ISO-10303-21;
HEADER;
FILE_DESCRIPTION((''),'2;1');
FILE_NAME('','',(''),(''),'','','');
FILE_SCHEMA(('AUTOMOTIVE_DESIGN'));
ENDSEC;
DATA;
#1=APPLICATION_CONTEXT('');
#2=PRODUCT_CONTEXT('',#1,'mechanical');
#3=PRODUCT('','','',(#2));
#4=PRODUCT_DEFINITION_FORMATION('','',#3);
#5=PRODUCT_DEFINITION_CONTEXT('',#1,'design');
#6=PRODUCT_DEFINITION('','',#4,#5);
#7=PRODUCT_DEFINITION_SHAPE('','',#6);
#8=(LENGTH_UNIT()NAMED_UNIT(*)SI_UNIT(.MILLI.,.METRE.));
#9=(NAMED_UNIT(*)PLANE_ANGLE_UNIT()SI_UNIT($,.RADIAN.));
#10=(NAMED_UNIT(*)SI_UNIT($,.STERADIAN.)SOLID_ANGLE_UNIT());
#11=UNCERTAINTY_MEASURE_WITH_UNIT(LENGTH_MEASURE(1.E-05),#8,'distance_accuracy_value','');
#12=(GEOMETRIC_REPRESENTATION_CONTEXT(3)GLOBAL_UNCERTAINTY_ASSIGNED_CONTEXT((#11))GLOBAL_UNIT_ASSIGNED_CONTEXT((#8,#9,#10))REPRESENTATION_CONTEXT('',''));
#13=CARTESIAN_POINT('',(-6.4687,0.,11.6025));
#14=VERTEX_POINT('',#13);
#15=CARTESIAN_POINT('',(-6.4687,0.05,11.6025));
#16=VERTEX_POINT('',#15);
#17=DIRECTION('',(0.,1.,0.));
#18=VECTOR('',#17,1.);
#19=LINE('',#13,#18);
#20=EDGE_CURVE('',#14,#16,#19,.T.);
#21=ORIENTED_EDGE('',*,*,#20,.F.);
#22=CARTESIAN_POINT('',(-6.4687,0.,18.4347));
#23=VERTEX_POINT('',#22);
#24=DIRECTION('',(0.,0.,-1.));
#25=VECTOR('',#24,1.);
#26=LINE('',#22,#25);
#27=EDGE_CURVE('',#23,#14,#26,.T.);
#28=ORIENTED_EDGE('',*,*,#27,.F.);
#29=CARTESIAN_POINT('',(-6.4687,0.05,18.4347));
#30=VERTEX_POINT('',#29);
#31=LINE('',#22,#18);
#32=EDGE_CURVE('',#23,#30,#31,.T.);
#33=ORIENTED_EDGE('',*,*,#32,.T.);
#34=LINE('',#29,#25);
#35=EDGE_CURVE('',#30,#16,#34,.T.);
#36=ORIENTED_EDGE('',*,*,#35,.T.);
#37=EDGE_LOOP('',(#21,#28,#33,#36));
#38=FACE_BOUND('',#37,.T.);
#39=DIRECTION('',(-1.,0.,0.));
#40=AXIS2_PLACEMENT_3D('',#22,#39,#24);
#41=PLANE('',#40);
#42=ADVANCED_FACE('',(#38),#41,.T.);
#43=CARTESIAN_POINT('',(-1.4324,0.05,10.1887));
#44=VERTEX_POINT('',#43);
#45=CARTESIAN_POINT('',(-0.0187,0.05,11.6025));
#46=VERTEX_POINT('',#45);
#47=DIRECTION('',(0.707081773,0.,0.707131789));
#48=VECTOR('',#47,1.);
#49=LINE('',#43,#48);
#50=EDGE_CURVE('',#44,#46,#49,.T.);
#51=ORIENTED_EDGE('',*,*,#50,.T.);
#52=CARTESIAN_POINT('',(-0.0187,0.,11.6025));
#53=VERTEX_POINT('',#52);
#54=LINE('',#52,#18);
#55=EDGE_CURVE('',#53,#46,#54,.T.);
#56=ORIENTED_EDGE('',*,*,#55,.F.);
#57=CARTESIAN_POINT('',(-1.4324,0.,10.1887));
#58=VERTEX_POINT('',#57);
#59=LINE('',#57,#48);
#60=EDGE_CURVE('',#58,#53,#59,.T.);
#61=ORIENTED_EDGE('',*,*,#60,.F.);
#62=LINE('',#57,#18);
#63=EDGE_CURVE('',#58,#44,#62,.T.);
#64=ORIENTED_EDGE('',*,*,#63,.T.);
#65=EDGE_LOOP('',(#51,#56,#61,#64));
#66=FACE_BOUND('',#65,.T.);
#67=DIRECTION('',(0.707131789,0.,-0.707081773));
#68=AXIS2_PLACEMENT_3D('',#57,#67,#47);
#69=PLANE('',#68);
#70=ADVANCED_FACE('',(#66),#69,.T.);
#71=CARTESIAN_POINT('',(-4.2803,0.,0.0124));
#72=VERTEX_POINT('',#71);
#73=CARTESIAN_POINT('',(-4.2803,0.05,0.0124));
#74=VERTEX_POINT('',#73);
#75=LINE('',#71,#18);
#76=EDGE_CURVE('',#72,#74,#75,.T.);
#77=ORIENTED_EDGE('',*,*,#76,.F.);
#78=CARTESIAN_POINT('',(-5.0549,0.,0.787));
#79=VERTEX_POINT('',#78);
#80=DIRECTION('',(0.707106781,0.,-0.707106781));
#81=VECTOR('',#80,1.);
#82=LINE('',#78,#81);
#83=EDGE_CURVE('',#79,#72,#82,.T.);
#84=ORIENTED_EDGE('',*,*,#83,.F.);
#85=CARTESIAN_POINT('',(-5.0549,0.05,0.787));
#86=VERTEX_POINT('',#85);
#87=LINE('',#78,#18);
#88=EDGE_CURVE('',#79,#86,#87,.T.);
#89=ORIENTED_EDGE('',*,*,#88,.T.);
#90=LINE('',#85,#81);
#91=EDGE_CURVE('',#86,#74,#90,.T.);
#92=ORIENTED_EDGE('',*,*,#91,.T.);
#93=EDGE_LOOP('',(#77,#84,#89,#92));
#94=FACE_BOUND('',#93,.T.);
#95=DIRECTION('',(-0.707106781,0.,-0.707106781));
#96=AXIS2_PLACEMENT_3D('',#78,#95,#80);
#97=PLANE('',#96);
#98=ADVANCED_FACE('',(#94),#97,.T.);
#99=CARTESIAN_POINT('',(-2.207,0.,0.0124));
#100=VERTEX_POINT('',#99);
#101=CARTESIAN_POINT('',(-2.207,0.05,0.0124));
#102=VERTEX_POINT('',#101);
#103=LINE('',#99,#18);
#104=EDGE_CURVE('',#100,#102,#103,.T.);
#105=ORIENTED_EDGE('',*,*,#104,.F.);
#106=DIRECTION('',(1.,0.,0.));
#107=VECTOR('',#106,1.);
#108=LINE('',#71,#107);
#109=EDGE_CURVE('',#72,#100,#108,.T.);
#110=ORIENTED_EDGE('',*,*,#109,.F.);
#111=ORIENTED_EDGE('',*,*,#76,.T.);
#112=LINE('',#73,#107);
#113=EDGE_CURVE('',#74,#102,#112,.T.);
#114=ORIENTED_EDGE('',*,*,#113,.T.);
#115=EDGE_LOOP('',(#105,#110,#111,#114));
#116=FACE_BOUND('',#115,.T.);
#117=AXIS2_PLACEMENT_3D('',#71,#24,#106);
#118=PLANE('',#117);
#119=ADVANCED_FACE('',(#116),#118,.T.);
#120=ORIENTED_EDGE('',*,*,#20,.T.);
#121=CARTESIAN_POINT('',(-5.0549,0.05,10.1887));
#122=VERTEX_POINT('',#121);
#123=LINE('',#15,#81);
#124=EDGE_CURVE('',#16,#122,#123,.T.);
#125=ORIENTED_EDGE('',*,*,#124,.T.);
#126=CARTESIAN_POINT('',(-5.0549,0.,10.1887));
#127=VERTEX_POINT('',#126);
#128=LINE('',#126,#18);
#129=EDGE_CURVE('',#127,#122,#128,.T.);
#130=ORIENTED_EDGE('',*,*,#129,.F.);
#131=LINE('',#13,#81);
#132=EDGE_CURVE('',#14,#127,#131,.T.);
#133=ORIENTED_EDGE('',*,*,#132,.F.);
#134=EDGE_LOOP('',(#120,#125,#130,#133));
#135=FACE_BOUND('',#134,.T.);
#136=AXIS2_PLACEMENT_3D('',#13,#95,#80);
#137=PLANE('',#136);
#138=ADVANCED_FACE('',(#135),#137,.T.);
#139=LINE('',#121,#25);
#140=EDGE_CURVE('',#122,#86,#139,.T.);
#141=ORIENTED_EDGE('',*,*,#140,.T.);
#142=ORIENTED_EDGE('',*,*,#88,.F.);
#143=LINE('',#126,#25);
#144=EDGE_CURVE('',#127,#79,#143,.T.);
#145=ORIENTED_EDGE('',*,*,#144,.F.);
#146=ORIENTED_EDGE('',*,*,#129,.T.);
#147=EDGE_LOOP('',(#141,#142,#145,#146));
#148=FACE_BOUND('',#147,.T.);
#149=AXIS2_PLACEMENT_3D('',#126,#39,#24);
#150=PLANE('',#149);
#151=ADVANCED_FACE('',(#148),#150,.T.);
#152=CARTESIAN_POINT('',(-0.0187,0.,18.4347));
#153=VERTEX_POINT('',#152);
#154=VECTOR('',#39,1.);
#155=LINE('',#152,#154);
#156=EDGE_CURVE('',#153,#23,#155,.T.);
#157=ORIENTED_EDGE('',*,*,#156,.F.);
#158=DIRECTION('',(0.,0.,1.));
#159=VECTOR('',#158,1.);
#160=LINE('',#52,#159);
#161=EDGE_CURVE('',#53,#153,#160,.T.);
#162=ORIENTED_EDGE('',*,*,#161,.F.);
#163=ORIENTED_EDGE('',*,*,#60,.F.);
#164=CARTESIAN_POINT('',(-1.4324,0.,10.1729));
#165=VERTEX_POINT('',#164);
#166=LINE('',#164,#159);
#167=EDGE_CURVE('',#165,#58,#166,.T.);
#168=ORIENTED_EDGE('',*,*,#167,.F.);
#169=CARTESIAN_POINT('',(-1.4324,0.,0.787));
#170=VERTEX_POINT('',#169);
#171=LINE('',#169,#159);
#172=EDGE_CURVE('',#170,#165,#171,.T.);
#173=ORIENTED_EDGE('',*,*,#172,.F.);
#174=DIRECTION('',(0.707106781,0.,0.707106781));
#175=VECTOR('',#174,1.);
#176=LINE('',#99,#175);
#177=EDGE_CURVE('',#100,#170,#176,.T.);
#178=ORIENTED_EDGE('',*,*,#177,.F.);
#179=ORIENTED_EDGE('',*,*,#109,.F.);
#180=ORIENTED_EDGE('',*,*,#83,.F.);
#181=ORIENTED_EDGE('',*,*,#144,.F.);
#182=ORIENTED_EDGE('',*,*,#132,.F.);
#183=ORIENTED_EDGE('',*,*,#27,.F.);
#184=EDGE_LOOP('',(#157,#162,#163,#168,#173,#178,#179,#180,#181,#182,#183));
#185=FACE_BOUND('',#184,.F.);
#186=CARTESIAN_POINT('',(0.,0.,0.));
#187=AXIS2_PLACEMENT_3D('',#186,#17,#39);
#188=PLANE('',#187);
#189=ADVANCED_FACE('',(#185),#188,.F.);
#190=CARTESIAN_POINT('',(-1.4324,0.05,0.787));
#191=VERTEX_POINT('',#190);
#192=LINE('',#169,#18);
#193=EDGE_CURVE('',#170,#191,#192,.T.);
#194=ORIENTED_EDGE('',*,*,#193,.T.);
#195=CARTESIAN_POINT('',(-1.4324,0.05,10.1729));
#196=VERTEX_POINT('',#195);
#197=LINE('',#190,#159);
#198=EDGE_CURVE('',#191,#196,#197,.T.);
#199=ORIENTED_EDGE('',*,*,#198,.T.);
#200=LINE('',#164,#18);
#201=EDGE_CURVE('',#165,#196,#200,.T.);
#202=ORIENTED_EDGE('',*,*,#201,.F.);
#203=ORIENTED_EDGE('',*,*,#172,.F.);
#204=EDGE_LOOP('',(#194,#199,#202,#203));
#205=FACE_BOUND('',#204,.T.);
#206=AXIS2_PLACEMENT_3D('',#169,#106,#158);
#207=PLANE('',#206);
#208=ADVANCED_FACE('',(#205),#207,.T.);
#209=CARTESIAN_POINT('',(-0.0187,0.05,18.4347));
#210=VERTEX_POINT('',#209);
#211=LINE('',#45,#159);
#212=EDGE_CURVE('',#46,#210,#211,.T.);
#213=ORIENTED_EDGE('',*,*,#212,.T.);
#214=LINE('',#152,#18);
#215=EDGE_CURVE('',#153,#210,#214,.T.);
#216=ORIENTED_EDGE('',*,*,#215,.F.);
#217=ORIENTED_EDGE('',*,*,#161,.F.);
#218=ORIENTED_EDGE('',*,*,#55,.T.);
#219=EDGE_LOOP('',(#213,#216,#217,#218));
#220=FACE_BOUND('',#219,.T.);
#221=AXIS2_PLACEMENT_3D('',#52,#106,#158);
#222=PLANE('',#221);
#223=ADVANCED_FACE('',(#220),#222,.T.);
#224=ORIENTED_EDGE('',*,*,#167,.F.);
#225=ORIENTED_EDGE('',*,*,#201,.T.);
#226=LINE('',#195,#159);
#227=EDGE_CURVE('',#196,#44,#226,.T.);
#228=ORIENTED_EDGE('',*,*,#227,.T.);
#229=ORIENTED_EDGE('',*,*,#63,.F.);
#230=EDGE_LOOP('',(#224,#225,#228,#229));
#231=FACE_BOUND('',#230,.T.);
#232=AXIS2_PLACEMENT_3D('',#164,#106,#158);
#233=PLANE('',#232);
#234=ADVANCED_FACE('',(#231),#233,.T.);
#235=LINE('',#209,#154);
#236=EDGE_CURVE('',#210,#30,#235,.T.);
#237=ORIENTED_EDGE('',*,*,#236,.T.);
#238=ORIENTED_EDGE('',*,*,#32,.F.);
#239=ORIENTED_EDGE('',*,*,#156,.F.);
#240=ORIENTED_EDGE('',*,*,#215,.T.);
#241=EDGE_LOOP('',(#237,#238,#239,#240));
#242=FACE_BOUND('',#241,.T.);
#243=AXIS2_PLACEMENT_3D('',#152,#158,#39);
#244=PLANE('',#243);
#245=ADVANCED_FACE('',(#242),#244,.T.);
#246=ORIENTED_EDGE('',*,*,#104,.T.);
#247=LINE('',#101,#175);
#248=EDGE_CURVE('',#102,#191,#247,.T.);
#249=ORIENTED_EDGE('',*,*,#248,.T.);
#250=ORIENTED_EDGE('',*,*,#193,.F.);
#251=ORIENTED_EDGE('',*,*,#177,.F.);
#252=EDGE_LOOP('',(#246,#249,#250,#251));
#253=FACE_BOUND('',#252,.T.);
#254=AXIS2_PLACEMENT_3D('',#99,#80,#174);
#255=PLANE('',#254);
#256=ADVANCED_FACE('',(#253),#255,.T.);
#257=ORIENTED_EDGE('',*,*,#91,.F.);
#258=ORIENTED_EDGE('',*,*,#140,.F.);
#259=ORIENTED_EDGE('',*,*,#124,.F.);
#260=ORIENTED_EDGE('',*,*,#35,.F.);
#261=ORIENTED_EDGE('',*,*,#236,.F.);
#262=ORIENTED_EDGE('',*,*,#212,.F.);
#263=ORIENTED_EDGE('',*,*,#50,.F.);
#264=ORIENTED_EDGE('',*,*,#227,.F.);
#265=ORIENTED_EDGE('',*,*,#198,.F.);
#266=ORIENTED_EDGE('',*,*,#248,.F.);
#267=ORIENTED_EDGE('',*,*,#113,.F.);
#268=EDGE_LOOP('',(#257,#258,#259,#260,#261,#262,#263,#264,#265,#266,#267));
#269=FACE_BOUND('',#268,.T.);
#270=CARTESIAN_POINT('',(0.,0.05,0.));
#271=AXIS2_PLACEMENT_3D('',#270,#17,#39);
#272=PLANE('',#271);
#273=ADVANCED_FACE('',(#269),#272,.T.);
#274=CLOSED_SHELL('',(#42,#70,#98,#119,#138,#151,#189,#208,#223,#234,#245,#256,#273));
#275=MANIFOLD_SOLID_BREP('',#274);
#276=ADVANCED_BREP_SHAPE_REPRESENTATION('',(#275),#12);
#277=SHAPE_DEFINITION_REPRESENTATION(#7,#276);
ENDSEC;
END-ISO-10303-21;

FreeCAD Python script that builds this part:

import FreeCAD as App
import Part
import Sketcher


def add_polygon(sketch, points):
    """Adds a closed chain of lines whose ends are joined by coincident constraints."""
    first, n = sketch.GeometryCount, len(points)
    for a, b in zip(points, points[1:] + points[:1]):
        sketch.addGeometry(Part.LineSegment(App.Vector(*a, 0), App.Vector(*b, 0)), False)
    for i in range(n):
        sketch.addConstraint(Sketcher.Constraint("Coincident", first + i, 2, first + (i + 1) % n, 1))

doc = App.newDocument("Part")
params = doc.addObject("Spreadsheet::Sheet", "Params")
for row, (alias, value) in enumerate([
    ("sketch1_width", "6.45 mm"),
    ("pad1_length", "0.05 mm"),
], start=1):
    params.set(f"A{row}", alias)
    params.set(f"B{row}", "=" + value)
    params.setAlias(f"B{row}", alias)

body = doc.addObject("PartDesign::Body", "Body")

sketch1 = doc.addObject("Sketcher::SketchObject", "Sketch")
body.addObject(sketch1)
sketch1.AttachmentSupport = (doc.XZ_Plane, [""])
sketch1.MapMode = "FlatFace"
add_polygon(sketch1, [(-6.5, 11.6), (-6.5, 18.4), (0, 18.4), (0, 11.6), (-1.4, 10.2), (-1.4, 0.8), (-2.2, 0), (-4.3, 0), (-5.1, 0.8), (-5.1, 10.2)])
sketch1.addConstraint([
    Sketcher.Constraint("Vertical", 0),
    Sketcher.Constraint("Horizontal", 1),
    Sketcher.Constraint("Vertical", 2),
    Sketcher.Constraint("Vertical", 4),
    Sketcher.Constraint("Horizontal", 6),
    Sketcher.Constraint("Vertical", 8),
    Sketcher.Constraint("Parallel", 3, 5),
    Sketcher.Constraint("Perpendicular", 5, 7),
    Sketcher.Constraint("Parallel", 7, 9),
    Sketcher.Constraint("Horizontal", 4, 2, 7, 2),
    Sketcher.Constraint("Horizontal", 3, 2, 8, 2),
    Sketcher.Constraint("Horizontal", 2, 2, 9, 2),
    Sketcher.Constraint("Equal", 5, 7),
    Sketcher.Constraint("DistanceX", 1, 1, 1, 2, 6.45),
    Sketcher.Constraint("DistanceY", 5, 2, 2, 2, 11.59),
    Sketcher.Constraint("DistanceX", 6, 2, 6, 1, 2.0733),
    Sketcher.Constraint("DistanceY", 0, 1, 0, 2, 6.8322),
    Sketcher.Constraint("DistanceY", -1, 1, 4, 2, 0.787),
    Sketcher.Constraint("DistanceX", 5, 2, -1, 1, 2.207),
    Sketcher.Constraint("DistanceX", 7, 2, -1, 1, 5.055),
])
sketch1.setExpression("Constraints[23]", "Params.sketch1_width")
pad1 = doc.addObject("PartDesign::Pad", "Pad")
body.addObject(pad1)
pad1.Profile = sketch1
pad1.setExpression("Length", "Params.pad1_length")
pad1.Reversed = True

doc.recompute()
